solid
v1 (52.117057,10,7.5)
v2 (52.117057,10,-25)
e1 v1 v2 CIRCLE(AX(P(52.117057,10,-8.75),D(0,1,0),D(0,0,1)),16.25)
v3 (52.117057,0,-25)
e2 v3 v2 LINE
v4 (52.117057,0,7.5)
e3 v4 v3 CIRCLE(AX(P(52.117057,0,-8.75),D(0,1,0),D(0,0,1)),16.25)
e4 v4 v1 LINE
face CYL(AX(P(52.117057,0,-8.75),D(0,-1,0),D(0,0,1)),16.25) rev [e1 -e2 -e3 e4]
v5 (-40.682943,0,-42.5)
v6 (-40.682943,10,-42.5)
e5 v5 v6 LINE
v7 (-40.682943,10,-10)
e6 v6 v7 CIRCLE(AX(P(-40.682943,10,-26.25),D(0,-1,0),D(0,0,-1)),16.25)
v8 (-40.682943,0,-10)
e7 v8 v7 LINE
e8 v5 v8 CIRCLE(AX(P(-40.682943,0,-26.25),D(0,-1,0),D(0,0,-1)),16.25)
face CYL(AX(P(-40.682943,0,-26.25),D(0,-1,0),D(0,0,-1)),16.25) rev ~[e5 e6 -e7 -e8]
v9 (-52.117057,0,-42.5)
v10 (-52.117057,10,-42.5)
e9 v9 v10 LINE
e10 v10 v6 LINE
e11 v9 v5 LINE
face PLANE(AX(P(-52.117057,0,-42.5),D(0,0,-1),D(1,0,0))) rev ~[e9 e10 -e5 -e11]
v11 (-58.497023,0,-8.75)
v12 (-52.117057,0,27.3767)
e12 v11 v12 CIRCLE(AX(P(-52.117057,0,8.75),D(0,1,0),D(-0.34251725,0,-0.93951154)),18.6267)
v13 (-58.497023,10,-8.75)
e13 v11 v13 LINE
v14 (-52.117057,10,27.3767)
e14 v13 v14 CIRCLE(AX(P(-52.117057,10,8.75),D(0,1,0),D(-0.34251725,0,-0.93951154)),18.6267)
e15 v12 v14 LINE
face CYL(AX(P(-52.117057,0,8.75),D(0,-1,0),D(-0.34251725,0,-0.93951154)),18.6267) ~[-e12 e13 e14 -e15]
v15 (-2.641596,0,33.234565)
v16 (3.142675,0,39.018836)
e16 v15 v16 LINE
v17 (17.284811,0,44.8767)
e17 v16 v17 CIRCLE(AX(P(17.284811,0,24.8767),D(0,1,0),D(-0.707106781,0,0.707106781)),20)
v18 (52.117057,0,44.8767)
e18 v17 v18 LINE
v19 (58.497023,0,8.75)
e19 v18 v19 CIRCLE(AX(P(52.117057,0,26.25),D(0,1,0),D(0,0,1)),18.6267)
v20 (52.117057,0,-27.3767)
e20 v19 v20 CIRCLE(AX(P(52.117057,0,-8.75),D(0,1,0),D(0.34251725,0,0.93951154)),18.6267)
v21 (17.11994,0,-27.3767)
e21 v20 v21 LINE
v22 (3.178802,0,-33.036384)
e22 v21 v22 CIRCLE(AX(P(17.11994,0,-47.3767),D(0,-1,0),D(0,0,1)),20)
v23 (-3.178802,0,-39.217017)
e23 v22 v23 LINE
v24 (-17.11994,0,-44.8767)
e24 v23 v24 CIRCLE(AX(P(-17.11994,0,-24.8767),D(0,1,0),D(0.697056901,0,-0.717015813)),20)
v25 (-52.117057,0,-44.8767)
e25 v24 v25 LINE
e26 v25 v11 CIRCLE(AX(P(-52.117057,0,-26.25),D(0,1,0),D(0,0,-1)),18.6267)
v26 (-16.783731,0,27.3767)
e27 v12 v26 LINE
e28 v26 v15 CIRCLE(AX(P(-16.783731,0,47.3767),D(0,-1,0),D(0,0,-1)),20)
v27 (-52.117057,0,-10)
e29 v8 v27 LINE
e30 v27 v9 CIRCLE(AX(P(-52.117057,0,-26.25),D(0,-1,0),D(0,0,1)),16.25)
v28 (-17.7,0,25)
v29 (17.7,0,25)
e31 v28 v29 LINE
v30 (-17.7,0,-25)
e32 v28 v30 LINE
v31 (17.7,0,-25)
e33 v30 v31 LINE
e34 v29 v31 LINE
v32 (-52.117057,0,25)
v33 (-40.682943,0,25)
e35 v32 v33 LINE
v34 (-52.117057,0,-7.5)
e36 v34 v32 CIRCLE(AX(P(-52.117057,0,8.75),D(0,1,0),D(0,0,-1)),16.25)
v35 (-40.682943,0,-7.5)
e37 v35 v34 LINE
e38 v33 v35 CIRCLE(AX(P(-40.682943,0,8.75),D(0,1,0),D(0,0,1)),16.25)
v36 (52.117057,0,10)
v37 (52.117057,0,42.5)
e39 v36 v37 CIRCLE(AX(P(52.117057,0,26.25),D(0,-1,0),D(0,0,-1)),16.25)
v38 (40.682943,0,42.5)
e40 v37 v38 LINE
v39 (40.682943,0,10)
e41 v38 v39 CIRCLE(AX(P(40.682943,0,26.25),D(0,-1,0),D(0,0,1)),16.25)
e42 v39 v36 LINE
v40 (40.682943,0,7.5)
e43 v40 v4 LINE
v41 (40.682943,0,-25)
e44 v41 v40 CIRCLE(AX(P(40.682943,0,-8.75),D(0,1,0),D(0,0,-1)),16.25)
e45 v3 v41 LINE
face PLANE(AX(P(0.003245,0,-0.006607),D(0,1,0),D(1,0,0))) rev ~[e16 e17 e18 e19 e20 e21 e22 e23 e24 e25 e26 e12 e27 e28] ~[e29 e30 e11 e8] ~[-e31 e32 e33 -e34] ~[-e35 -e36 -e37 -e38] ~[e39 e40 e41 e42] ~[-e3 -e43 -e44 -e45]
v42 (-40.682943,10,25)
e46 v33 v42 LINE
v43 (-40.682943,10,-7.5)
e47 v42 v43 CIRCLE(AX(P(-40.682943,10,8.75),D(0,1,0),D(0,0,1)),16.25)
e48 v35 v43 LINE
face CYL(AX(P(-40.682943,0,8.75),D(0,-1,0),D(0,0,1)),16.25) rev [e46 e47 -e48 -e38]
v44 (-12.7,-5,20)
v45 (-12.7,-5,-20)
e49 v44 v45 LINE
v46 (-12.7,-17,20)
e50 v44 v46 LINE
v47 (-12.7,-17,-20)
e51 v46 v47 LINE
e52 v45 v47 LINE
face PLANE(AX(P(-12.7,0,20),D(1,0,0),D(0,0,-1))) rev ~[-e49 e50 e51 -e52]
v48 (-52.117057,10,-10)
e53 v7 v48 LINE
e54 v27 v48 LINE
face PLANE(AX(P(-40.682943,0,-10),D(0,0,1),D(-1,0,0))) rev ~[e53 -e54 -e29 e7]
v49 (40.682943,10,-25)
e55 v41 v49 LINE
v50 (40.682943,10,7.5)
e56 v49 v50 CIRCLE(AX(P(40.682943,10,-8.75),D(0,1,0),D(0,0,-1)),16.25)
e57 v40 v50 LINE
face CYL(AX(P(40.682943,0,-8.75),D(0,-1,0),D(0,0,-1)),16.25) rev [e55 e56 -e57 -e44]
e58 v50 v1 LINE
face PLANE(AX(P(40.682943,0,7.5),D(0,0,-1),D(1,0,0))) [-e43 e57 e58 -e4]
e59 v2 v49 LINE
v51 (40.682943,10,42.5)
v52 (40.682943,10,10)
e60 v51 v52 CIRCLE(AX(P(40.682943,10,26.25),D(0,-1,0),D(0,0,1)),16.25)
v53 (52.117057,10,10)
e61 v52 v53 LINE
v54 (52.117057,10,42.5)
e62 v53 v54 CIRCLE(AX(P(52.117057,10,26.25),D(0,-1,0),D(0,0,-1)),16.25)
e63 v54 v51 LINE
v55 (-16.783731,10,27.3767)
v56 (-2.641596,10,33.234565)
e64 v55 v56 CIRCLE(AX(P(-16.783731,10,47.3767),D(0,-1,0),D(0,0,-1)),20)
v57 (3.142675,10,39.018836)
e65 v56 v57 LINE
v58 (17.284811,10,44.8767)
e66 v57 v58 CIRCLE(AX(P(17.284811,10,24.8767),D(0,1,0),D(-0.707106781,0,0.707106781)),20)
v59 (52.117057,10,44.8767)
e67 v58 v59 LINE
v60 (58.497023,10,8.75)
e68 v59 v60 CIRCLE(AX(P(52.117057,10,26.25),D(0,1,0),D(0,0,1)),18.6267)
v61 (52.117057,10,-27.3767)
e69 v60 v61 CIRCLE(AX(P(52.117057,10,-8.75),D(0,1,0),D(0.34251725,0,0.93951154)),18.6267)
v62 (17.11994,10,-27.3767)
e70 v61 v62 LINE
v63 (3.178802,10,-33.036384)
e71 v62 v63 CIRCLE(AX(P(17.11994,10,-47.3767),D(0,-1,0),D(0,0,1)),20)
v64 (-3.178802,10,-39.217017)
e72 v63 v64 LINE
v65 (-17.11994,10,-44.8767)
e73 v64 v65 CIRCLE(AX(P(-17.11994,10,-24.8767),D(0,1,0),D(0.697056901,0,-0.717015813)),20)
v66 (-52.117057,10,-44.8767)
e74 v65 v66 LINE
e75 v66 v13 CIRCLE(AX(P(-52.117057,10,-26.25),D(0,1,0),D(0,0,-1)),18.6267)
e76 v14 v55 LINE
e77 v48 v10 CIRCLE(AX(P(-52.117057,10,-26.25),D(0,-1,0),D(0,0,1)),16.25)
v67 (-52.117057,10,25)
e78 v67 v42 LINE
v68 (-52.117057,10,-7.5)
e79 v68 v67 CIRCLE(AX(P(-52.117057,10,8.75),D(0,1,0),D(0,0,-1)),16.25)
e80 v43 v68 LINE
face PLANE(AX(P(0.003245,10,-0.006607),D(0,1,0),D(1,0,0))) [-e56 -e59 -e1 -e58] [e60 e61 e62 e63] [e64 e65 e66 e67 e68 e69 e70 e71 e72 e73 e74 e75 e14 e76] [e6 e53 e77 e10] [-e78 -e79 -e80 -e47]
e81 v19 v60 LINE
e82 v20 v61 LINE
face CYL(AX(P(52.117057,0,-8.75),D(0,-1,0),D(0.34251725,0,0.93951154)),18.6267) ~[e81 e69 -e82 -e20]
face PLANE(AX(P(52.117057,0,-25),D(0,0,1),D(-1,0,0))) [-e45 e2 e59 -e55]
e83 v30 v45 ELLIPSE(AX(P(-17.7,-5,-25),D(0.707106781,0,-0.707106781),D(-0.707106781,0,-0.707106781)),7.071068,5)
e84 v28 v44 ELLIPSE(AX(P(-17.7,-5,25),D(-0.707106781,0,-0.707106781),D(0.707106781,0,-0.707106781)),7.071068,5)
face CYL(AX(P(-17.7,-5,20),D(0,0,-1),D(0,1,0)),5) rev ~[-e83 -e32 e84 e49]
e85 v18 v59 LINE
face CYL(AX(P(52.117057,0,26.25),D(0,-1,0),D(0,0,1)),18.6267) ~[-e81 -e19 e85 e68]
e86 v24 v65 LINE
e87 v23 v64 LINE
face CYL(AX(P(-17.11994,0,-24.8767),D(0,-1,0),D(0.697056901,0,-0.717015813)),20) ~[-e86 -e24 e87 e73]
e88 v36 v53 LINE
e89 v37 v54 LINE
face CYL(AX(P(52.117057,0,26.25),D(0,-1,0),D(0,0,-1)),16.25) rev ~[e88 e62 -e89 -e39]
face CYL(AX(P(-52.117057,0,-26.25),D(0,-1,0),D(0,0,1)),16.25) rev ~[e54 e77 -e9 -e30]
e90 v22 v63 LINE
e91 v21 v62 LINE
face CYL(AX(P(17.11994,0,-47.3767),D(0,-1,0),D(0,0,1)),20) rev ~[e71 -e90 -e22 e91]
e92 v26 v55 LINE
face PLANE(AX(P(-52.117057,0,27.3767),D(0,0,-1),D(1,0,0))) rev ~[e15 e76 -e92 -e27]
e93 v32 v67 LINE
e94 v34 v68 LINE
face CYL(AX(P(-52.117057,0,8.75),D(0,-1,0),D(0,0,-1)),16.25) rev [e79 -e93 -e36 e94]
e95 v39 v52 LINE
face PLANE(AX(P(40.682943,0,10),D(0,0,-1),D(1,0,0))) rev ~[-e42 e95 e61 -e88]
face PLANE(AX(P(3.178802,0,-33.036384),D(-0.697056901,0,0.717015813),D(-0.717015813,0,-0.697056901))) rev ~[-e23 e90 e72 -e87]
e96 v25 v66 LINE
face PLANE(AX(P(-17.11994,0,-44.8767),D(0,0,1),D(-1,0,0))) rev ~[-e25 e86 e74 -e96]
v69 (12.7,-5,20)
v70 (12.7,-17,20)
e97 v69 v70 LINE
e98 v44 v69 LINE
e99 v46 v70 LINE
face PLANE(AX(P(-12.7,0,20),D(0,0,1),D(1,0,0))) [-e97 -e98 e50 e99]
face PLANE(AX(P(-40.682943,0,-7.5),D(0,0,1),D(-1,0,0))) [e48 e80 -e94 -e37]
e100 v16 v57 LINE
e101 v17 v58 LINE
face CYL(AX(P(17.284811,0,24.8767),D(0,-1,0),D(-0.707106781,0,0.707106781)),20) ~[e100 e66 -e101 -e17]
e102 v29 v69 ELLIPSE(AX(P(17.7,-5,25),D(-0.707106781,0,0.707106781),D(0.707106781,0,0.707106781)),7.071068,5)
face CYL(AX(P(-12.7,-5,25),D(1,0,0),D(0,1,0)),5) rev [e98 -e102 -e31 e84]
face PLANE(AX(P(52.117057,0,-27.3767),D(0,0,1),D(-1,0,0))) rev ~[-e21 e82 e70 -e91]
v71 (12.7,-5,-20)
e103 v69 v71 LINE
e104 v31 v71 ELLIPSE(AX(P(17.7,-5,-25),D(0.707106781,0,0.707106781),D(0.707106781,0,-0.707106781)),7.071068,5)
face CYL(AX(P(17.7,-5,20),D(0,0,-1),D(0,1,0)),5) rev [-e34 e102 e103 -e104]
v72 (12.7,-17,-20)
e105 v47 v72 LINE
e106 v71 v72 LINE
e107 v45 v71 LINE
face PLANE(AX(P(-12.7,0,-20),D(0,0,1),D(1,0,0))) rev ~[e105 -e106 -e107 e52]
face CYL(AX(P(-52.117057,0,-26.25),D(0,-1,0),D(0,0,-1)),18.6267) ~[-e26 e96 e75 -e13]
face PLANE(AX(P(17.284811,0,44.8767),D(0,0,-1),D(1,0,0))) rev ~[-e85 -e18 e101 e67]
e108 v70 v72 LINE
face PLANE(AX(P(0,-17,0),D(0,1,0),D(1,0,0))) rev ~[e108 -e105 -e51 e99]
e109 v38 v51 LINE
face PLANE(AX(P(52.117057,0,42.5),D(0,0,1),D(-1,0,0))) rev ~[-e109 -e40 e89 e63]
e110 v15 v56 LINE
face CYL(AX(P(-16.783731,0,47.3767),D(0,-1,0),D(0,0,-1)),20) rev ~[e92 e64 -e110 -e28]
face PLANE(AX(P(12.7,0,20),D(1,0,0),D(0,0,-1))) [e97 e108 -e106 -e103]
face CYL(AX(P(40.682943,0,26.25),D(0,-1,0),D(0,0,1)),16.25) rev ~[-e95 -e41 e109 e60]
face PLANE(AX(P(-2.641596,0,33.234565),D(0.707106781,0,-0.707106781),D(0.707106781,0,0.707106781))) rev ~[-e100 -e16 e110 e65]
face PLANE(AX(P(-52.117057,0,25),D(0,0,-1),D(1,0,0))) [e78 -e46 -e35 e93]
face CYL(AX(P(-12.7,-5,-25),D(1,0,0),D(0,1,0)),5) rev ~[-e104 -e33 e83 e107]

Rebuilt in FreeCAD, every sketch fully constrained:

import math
import FreeCAD as App
import Part
import Sketcher

V = App.Vector
Q = App.Units.Quantity


def edges_at(feature, points):
    """Names of the edges that pass closest to the given points."""
    edges = feature.Shape.Edges
    near = lambda p: min(range(len(edges)), key=lambda i: edges[i].distToShape(Part.Vertex(*p))[0])
    return sorted({f"Edge{near(p) + 1}" for p in points})

doc = App.newDocument("Part")
body = doc.addObject("PartDesign::Body", "Body")

# Sketch on XZ plane
sketch1 = body.newObject("Sketcher::SketchObject", "Sketch")
sketch1.AttachmentSupport = (doc.getObject("XZ_Plane"), [""])
sketch1.MapMode = "FlatFace"
sketch1.addGeometry(Part.ArcOfCircle(Part.Circle(V(-52.117057, -26.25, 0), V(0, 0, 1), 18.6267), math.radians(110.030313), math.radians(270)), False)
sketch1.addGeometry(Part.ArcOfCircle(Part.Circle(V(-52.117057, 8.75, 0), V(0, 0, 1), 18.6267), math.radians(90), math.radians(249.969687)), False)
sketch1.addGeometry(Part.LineSegment(V(-52.117057, 27.3767, 0), V(-16.783731, 27.3767, 0)), False)
sketch1.addGeometry(Part.ArcOfCircle(Part.Circle(V(-16.783731, 47.3767, 0), V(0, 0, 1), 20), math.radians(-90), math.radians(-45)), False)
sketch1.addGeometry(Part.LineSegment(V(-2.641596, 33.234565, 0), V(3.142675, 39.018836, 0)), False)
sketch1.addGeometry(Part.ArcOfCircle(Part.Circle(V(17.284811, 24.8767, 0), V(0, 0, 1), 20), math.radians(90), math.radians(135)), False)
sketch1.addGeometry(Part.LineSegment(V(17.284811, 44.8767, 0), V(52.117057, 44.8767, 0)), False)
sketch1.addGeometry(Part.ArcOfCircle(Part.Circle(V(52.117057, 26.25, 0), V(0, 0, 1), 18.6267), math.radians(-69.969687), math.radians(90)), False)
sketch1.addGeometry(Part.ArcOfCircle(Part.Circle(V(52.117057, -8.75, 0), V(0, 0, 1), 18.6267), math.radians(-90), math.radians(69.969687)), False)
sketch1.addGeometry(Part.LineSegment(V(52.117057, -27.3767, 0), V(17.11994, -27.3767, 0)), False)
sketch1.addGeometry(Part.ArcOfCircle(Part.Circle(V(17.11994, -47.3767, 0), V(0, 0, 1), 20), math.radians(90), math.radians(134.191353)), False)
sketch1.addGeometry(Part.LineSegment(V(3.178802, -33.036384, 0), V(-3.178802, -39.217017, 0)), False)
sketch1.addGeometry(Part.ArcOfCircle(Part.Circle(V(-17.11994, -24.8767, 0), V(0, 0, 1), 20), math.radians(-90), math.radians(-45.808647)), False)
sketch1.addGeometry(Part.LineSegment(V(-17.11994, -44.8767, 0), V(-52.117057, -44.8767, 0)), False)
sketch1.addGeometry(Part.LineSegment(V(-52.117057, -7.5, 0), V(-40.682943, -7.5, 0)), False)
sketch1.addGeometry(Part.ArcOfCircle(Part.Circle(V(-40.682943, 8.75, 0), V(0, 0, 1), 16.25), math.radians(-90), math.radians(90)), False)
sketch1.addGeometry(Part.LineSegment(V(-40.682943, 25, 0), V(-52.117057, 25, 0)), False)
sketch1.addGeometry(Part.ArcOfCircle(Part.Circle(V(-52.117057, 8.75, 0), V(0, 0, 1), 16.25), math.radians(90), math.radians(270)), False)
sketch1.addGeometry(Part.ArcOfCircle(Part.Circle(V(40.682943, 26.25, 0), V(0, 0, 1), 16.25), math.radians(90), math.radians(270)), False)
sketch1.addGeometry(Part.LineSegment(V(40.682943, 10, 0), V(52.117057, 10, 0)), False)
sketch1.addGeometry(Part.ArcOfCircle(Part.Circle(V(52.117057, 26.25, 0), V(0, 0, 1), 16.25), math.radians(-90), math.radians(90)), False)
sketch1.addGeometry(Part.LineSegment(V(52.117057, 42.5, 0), V(40.682943, 42.5, 0)), False)
sketch1.addGeometry(Part.ArcOfCircle(Part.Circle(V(-40.682943, -26.25, 0), V(0, 0, 1), 16.25), math.radians(-90), math.radians(90)), False)
sketch1.addGeometry(Part.LineSegment(V(-40.682943, -10, 0), V(-52.117057, -10, 0)), False)
sketch1.addGeometry(Part.ArcOfCircle(Part.Circle(V(-52.117057, -26.25, 0), V(0, 0, 1), 16.25), math.radians(90), math.radians(270)), False)
sketch1.addGeometry(Part.LineSegment(V(-52.117057, -42.5, 0), V(-40.682943, -42.5, 0)), False)
sketch1.addGeometry(Part.LineSegment(V(52.117057, 7.5, 0), V(40.682943, 7.5, 0)), False)
sketch1.addGeometry(Part.ArcOfCircle(Part.Circle(V(40.682943, -8.75, 0), V(0, 0, 1), 16.25), math.radians(90), math.radians(270)), False)
sketch1.addGeometry(Part.LineSegment(V(40.682943, -25, 0), V(52.117057, -25, 0)), False)
sketch1.addGeometry(Part.ArcOfCircle(Part.Circle(V(52.117057, -8.75, 0), V(0, 0, 1), 16.25), math.radians(-90), math.radians(90)), False)
sketch1.addConstraint(Sketcher.Constraint("Coincident", 0, 1, 1, 2))
sketch1.addConstraint(Sketcher.Constraint("Tangent", 1, 1, 2, 1))
sketch1.addConstraint(Sketcher.Constraint("Tangent", 2, 2, 3, 1))
sketch1.addConstraint(Sketcher.Constraint("Tangent", 3, 2, 4, 1))
sketch1.addConstraint(Sketcher.Constraint("Tangent", 4, 2, 5, 2))
sketch1.addConstraint(Sketcher.Constraint("Tangent", 5, 1, 6, 1))
sketch1.addConstraint(Sketcher.Constraint("Tangent", 6, 2, 7, 2))
sketch1.addConstraint(Sketcher.Constraint("Coincident", 7, 1, 8, 2))
sketch1.addConstraint(Sketcher.Constraint("Tangent", 8, 1, 9, 1))
sketch1.addConstraint(Sketcher.Constraint("Tangent", 9, 2, 10, 1))
sketch1.addConstraint(Sketcher.Constraint("Tangent", 10, 2, 11, 1))
sketch1.addConstraint(Sketcher.Constraint("Tangent", 11, 2, 12, 2))
sketch1.addConstraint(Sketcher.Constraint("Tangent", 12, 1, 13, 1))
sketch1.addConstraint(Sketcher.Constraint("Tangent", 13, 2, 0, 2))
sketch1.addConstraint(Sketcher.Constraint("Tangent", 14, 2, 15, 1))
sketch1.addConstraint(Sketcher.Constraint("Tangent", 15, 2, 16, 1))
sketch1.addConstraint(Sketcher.Constraint("Tangent", 16, 2, 17, 1))
sketch1.addConstraint(Sketcher.Constraint("Tangent", 17, 2, 14, 1))
sketch1.addConstraint(Sketcher.Constraint("Tangent", 18, 2, 19, 1))
sketch1.addConstraint(Sketcher.Constraint("Tangent", 19, 2, 20, 1))
sketch1.addConstraint(Sketcher.Constraint("Tangent", 20, 2, 21, 1))
sketch1.addConstraint(Sketcher.Constraint("Tangent", 21, 2, 18, 1))
sketch1.addConstraint(Sketcher.Constraint("Tangent", 22, 2, 23, 1))
sketch1.addConstraint(Sketcher.Constraint("Tangent", 23, 2, 24, 1))
sketch1.addConstraint(Sketcher.Constraint("Tangent", 24, 2, 25, 1))
sketch1.addConstraint(Sketcher.Constraint("Tangent", 25, 2, 22, 1))
sketch1.addConstraint(Sketcher.Constraint("Tangent", 26, 2, 27, 1))
sketch1.addConstraint(Sketcher.Constraint("Tangent", 27, 2, 28, 1))
sketch1.addConstraint(Sketcher.Constraint("Tangent", 28, 2, 29, 1))
sketch1.addConstraint(Sketcher.Constraint("Tangent", 29, 2, 26, 1))
sketch1.addConstraint(Sketcher.Constraint("Horizontal", 2))
sketch1.addConstraint(Sketcher.Constraint("Horizontal", 6))
sketch1.addConstraint(Sketcher.Constraint("Horizontal", 9))
sketch1.addConstraint(Sketcher.Constraint("Horizontal", 13))
sketch1.addConstraint(Sketcher.Constraint("Horizontal", 14))
sketch1.addConstraint(Sketcher.Constraint("Horizontal", 16))
sketch1.addConstraint(Sketcher.Constraint("Horizontal", 19))
sketch1.addConstraint(Sketcher.Constraint("Horizontal", 21))
sketch1.addConstraint(Sketcher.Constraint("Horizontal", 23))
sketch1.addConstraint(Sketcher.Constraint("Horizontal", 25))
sketch1.addConstraint(Sketcher.Constraint("Horizontal", 26))
sketch1.addConstraint(Sketcher.Constraint("Horizontal", 28))
sketch1.addConstraint(Sketcher.Constraint("Coincident", 17, 3, 1, 3))
sketch1.addConstraint(Sketcher.Constraint("Coincident", 20, 3, 7, 3))
sketch1.addConstraint(Sketcher.Constraint("Coincident", 24, 3, 0, 3))
sketch1.addConstraint(Sketcher.Constraint("Coincident", 29, 3, 8, 3))
sketch1.addConstraint(Sketcher.Constraint("Equal", 0, 1))
sketch1.addConstraint(Sketcher.Constraint("Equal", 3, 5))
sketch1.addConstraint(Sketcher.Constraint("Equal", 1, 7))
sketch1.addConstraint(Sketcher.Constraint("Equal", 7, 8))
sketch1.addConstraint(Sketcher.Constraint("Equal", 5, 10))
sketch1.addConstraint(Sketcher.Constraint("Equal", 10, 12))
sketch1.addConstraint(Sketcher.Constraint("Equal", 17, 18))
sketch1.addConstraint(Sketcher.Constraint("Equal", 20, 22))
sketch1.addConstraint(Sketcher.Constraint("Equal", 24, 27))
sketch1.addConstraint(Sketcher.Constraint("Symmetric", 0, 3, 7, 3, -1, 1))
sketch1.addConstraint(Sketcher.Constraint("Symmetric", 1, 3, 8, 3, -1, 1))
sketch1.addConstraint(Sketcher.Constraint("Horizontal", 29, 3, 0, 1))
sketch1.addConstraint(Sketcher.Constraint("Vertical", 0, 3, 1, 3))
sketch1.addConstraint(Sketcher.Constraint("Vertical", 15, 3, 22, 3))
sketch1.addConstraint(Sketcher.Constraint("Vertical", 18, 3, 27, 3))
sketch1.addConstraint(Sketcher.Constraint("Equal", 9, 13))
sketch1.addConstraint(Sketcher.Constraint("Equal", 16, 19))
sketch1.addConstraint(Sketcher.Constraint("Radius", 3, 20.0))
sketch1.addConstraint(Sketcher.Constraint("Angle", 4, Q("45 deg")))
sketch1.addConstraint(Sketcher.Constraint("Radius", 15, 16.25))
sketch1.addConstraint(Sketcher.Constraint("DistanceY", -1, 1, 15, 2, 25.0))
sketch1.addConstraint(Sketcher.Constraint("Radius", 0, 18.6267))
sketch1.addConstraint(Sketcher.Constraint("DistanceX", -1, 1, 10, 2, 3.178802))
sketch1.addConstraint(Sketcher.Constraint("DistanceX", 2, 1, 2, 2, 35.333325))
sketch1.addConstraint(Sketcher.Constraint("DistanceX", 6, 1, 6, 2, 34.832246))
sketch1.addConstraint(Sketcher.Constraint("DistanceX", 14, 1, 14, 2, 11.434113))
pad1 = body.newObject("PartDesign::Pad", "Pad")
pad1.Profile = sketch1
pad1.Length = 10
pad1.Reversed = True

# Sketch on XZ plane
sketch2 = body.newObject("Sketcher::SketchObject", "Sketch001")
sketch2.AttachmentSupport = (doc.getObject("XZ_Plane"), [""])
sketch2.MapMode = "FlatFace"
sketch2.addGeometry(Part.LineSegment(V(-12.7, -20, 0), V(-12.7, 20, 0)), False)
sketch2.addGeometry(Part.LineSegment(V(-12.7, 20, 0), V(12.7, 20, 0)), False)
sketch2.addGeometry(Part.LineSegment(V(12.7, 20, 0), V(12.7, -20, 0)), False)
sketch2.addGeometry(Part.LineSegment(V(12.7, -20, 0), V(-12.7, -20, 0)), False)
sketch2.addConstraint(Sketcher.Constraint("Coincident", 0, 2, 1, 1))
sketch2.addConstraint(Sketcher.Constraint("Coincident", 1, 2, 2, 1))
sketch2.addConstraint(Sketcher.Constraint("Coincident", 2, 2, 3, 1))
sketch2.addConstraint(Sketcher.Constraint("Coincident", 3, 2, 0, 1))
sketch2.addConstraint(Sketcher.Constraint("Vertical", 0))
sketch2.addConstraint(Sketcher.Constraint("Horizontal", 1))
sketch2.addConstraint(Sketcher.Constraint("Vertical", 2))
sketch2.addConstraint(Sketcher.Constraint("Horizontal", 3))
sketch2.addConstraint(Sketcher.Constraint("Symmetric", 0, 2, 2, 2, -1, 1))
sketch2.addConstraint(Sketcher.Constraint("DistanceY", 0, 1, 0, 2, 40.0))
sketch2.addConstraint(Sketcher.Constraint("DistanceX", 1, 1, 1, 2, 25.4))
pad2 = body.newObject("PartDesign::Pad", "Pad001")
pad2.Profile = sketch2
pad2.Length = 17
doc.recompute()

fillet = body.newObject("PartDesign::Fillet", "Fillet")
fillet.Base = (pad2, edges_at(pad2, [
    (-12.7, 0, 0),
    (0, 0, 20),
    (12.7, 0, 0),
    (0, 0, -20),
]))
fillet.Radius = 5

doc.recompute()
